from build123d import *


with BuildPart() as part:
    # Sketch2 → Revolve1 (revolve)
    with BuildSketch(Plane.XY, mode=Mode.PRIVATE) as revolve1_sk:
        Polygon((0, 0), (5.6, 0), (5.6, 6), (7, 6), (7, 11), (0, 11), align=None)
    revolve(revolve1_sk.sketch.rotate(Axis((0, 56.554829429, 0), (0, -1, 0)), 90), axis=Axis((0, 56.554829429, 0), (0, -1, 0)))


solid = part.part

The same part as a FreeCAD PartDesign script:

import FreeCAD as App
import Part
import Sketcher

V = App.Vector
Q = App.Units.Quantity


def add_polygon(sketch, points):
    """Adds a closed chain of lines whose ends are joined by coincident constraints."""
    first, n = sketch.GeometryCount, len(points)
    for a, b in zip(points, points[1:] + points[:1]):
        sketch.addGeometry(Part.LineSegment(App.Vector(*a, 0), App.Vector(*b, 0)), False)
    for i in range(n):
        sketch.addConstraint(Sketcher.Constraint("Coincident", first + i, 2, first + (i + 1) % n, 1))

doc = App.newDocument("Part")
body = doc.addObject("PartDesign::Body", "Body")

# Sketch on XY plane
sketch1 = body.newObject("Sketcher::SketchObject", "Sketch")
sketch1.AttachmentSupport = (doc.getObject("XY_Plane"), [""])
sketch1.MapMode = "FlatFace"
add_polygon(sketch1, [(0, 0), (5.6, 0), (5.6, 6), (7, 6), (7, 11), (0, 11)])  # lines 0-5
sketch1.addConstraint(Sketcher.Constraint("Horizontal", 0))
sketch1.addConstraint(Sketcher.Constraint("Vertical", 1))
sketch1.addConstraint(Sketcher.Constraint("Horizontal", 2))
sketch1.addConstraint(Sketcher.Constraint("Vertical", 3))
sketch1.addConstraint(Sketcher.Constraint("Horizontal", 4))
sketch1.addConstraint(Sketcher.Constraint("Vertical", 5))
sketch1.addConstraint(Sketcher.Constraint("Coincident", 5, 2, -1, 1))
sketch1.addConstraint(Sketcher.Constraint("DistanceX", 4, 2, 4, 1, Q("7 mm")))
sketch1.addConstraint(Sketcher.Constraint("DistanceY", 1, 1, 1, 2, Q("6 mm")))
sketch1.addConstraint(Sketcher.Constraint("DistanceY", 3, 1, 3, 2, Q("5 mm")))
sketch1.addConstraint(Sketcher.Constraint("DistanceX", 0, 1, 0, 2, Q("5.6 mm")))
revolution = body.newObject("PartDesign::Revolution", "Revolution")
revolution.Profile = sketch1
revolution.ReferenceAxis = (sketch1, ["V_Axis"])
revolution.Angle = 360

doc.recompute()
